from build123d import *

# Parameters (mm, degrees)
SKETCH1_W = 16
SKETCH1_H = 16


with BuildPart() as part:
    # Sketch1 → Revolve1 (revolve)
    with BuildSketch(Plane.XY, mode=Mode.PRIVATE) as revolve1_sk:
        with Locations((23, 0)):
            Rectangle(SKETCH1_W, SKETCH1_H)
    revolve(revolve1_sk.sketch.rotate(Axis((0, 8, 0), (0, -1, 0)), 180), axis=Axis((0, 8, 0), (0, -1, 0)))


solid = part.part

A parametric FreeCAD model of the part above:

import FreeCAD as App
import Part
import Sketcher

V = App.Vector

doc = App.newDocument("Part")
body = doc.addObject("PartDesign::Body", "Body")

sketch1 = body.newObject("Sketcher::SketchObject", "Sketch")
sketch1.AttachmentSupport = (doc.getObject("XY_Plane"), [""])
sketch1.MapMode = "FlatFace"
sketch1.addGeometry(Part.LineSegment(V(15, 8, 0), V(15, -8, 0)), False)
sketch1.addGeometry(Part.LineSegment(V(15, -8, 0), V(31, -8, 0)), False)
sketch1.addGeometry(Part.LineSegment(V(31, -8, 0), V(31, 8, 0)), False)
sketch1.addGeometry(Part.LineSegment(V(31, 8, 0), V(15, 8, 0)), False)
sketch1.addConstraint(Sketcher.Constraint("Coincident", 0, 2, 1, 1))
sketch1.addConstraint(Sketcher.Constraint("Coincident", 1, 2, 2, 1))
sketch1.addConstraint(Sketcher.Constraint("Coincident", 2, 2, 3, 1))
sketch1.addConstraint(Sketcher.Constraint("Coincident", 3, 2, 0, 1))
sketch1.addConstraint(Sketcher.Constraint("Vertical", 0))
sketch1.addConstraint(Sketcher.Constraint("Horizontal", 1))
sketch1.addConstraint(Sketcher.Constraint("Vertical", 2))
sketch1.addConstraint(Sketcher.Constraint("Horizontal", 3))
sketch1.addConstraint(Sketcher.Constraint("Equal", 3, 0))
sketch1.addConstraint(Sketcher.Constraint("DistanceX", 1, 1, 1, 2, 16.0))
sketch1.addConstraint(Sketcher.Constraint("DistanceX", -1, 1, 0, 2, 15.0))
sketch1.addConstraint(Sketcher.Constraint("DistanceY", 0, 2, -1, 1, 8.0))
revolution = body.newObject("PartDesign::Revolution", "Revolution")
revolution.Profile = sketch1
revolution.ReferenceAxis = (sketch1, ["V_Axis"])
revolution.Angle = 360

doc.recompute()
